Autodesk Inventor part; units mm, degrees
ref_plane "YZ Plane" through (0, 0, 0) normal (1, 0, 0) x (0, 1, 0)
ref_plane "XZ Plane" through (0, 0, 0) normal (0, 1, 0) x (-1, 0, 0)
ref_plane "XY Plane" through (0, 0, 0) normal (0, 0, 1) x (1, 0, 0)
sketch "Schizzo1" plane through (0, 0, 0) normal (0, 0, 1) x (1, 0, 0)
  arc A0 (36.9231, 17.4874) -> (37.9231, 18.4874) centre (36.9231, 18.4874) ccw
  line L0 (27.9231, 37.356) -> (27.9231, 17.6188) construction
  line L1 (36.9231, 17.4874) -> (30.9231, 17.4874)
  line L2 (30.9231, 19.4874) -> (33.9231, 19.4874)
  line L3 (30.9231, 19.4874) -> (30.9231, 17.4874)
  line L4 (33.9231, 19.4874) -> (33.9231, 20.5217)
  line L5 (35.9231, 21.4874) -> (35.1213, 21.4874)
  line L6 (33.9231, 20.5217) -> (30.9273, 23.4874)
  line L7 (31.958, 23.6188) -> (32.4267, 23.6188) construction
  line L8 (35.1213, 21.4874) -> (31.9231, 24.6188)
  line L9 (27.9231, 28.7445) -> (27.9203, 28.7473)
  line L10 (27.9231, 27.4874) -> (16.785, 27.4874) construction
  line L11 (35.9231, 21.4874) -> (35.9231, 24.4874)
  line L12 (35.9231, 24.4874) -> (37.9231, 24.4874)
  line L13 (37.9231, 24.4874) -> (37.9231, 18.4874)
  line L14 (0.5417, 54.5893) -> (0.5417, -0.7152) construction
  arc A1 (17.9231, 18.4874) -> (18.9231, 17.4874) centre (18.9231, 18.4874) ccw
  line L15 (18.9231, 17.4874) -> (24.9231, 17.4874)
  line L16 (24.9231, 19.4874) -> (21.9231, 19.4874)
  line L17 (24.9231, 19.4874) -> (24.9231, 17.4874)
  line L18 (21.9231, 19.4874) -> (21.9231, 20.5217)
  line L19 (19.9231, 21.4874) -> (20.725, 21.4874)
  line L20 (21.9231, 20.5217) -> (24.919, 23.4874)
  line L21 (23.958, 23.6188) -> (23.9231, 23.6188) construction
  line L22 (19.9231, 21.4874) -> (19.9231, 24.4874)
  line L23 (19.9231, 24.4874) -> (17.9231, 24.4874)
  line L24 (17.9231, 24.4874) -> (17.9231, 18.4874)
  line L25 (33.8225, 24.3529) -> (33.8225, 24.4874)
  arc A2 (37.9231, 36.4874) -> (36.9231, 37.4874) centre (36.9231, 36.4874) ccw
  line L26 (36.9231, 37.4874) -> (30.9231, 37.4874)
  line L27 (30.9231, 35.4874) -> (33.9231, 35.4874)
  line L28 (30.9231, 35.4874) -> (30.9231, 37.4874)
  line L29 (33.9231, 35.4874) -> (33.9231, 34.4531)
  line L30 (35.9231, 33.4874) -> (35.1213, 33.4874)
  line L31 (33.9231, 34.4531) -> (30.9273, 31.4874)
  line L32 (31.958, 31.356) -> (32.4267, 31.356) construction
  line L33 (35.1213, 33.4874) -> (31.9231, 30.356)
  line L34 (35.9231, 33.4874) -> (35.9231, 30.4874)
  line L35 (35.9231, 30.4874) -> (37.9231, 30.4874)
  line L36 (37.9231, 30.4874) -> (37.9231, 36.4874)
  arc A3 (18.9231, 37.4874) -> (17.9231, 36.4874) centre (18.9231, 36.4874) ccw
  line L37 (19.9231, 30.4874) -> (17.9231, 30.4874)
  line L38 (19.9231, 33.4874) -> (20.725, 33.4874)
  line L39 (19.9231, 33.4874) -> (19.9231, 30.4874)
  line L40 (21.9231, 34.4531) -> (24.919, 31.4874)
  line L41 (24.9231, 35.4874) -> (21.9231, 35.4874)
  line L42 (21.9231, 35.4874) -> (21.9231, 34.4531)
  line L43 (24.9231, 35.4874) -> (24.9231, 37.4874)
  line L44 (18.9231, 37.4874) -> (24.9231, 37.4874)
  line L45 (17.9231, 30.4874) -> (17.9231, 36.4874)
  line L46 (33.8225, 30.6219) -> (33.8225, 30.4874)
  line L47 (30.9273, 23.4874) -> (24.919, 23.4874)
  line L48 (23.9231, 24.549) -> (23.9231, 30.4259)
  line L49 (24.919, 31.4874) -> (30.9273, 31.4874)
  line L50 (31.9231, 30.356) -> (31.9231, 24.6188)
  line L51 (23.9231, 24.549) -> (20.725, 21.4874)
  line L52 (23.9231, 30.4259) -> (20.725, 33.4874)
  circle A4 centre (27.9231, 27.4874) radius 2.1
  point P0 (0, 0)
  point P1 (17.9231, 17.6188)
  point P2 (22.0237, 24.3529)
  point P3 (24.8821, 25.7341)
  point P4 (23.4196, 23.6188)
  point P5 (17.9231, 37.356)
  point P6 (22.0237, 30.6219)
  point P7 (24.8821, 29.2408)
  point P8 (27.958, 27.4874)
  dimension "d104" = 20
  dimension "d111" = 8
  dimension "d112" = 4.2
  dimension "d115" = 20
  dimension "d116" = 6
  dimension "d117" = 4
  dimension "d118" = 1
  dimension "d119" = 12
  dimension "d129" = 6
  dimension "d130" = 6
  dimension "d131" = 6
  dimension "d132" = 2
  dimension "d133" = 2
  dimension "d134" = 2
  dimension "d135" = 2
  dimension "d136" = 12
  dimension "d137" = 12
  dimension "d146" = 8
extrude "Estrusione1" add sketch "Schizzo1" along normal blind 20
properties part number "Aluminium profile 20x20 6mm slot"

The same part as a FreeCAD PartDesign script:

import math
import FreeCAD as App
import Part
import Sketcher

V = App.Vector
Q = App.Units.Quantity

doc = App.newDocument("Part")
body = doc.addObject("PartDesign::Body", "Body")

# Sketch on XY plane
sketch1 = body.newObject("Sketcher::SketchObject", "Sketch")
sketch1.AttachmentSupport = (doc.getObject("XY_Plane"), [""])
sketch1.MapMode = "FlatFace"
sketch1.addGeometry([
    Part.LineSegment(V(30.9, 17.5, 0), V(36.9, 17.5, 0)),  # 0
    Part.ArcOfCircle(Part.Circle(V(36.9, 18.5, 0), V(0, 0, 1), 1), math.radians(-90), math.radians(0)),  # 1
    Part.LineSegment(V(37.9, 18.5, 0), V(37.9, 24.5, 0)),  # 2
    Part.LineSegment(V(37.9, 24.5, 0), V(35.9, 24.5, 0)),  # 3
    Part.LineSegment(V(35.9, 24.5, 0), V(35.9, 21.5, 0)),  # 4
    Part.LineSegment(V(35.9, 21.5, 0), V(35.1, 21.5, 0)),  # 5
    Part.LineSegment(V(35.1, 21.5, 0), V(31.9, 24.6, 0)),  # 6
    Part.LineSegment(V(31.9, 24.6, 0), V(31.9, 30.4, 0)),  # 7
    Part.LineSegment(V(31.9, 30.4, 0), V(35.1, 33.5, 0)),  # 8
    Part.LineSegment(V(35.1, 33.5, 0), V(35.9, 33.5, 0)),  # 9
    Part.LineSegment(V(35.9, 33.5, 0), V(35.9, 30.5, 0)),  # 10
    Part.LineSegment(V(35.9, 30.5, 0), V(37.9, 30.5, 0)),  # 11
    Part.LineSegment(V(37.9, 30.5, 0), V(37.9, 36.5, 0)),  # 12
    Part.ArcOfCircle(Part.Circle(V(36.9, 36.5, 0), V(0, 0, 1), 1), math.radians(0), math.radians(90)),  # 13
    Part.LineSegment(V(36.9, 37.5, 0), V(30.9, 37.5, 0)),  # 14
    Part.LineSegment(V(30.9, 37.5, 0), V(30.9, 35.5, 0)),  # 15
    Part.LineSegment(V(30.9, 35.5, 0), V(33.9, 35.5, 0)),  # 16
    Part.LineSegment(V(33.9, 35.5, 0), V(33.9, 34.5, 0)),  # 17
    Part.LineSegment(V(33.9, 34.5, 0), V(30.9, 31.5, 0)),  # 18
    Part.LineSegment(V(30.9, 31.5, 0), V(24.9, 31.5, 0)),  # 19
    Part.LineSegment(V(24.9, 31.5, 0), V(21.9, 34.5, 0)),  # 20
    Part.LineSegment(V(21.9, 34.5, 0), V(21.9, 35.5, 0)),  # 21
    Part.LineSegment(V(21.9, 35.5, 0), V(24.9, 35.5, 0)),  # 22
    Part.LineSegment(V(24.9, 35.5, 0), V(24.9, 37.5, 0)),  # 23
    Part.LineSegment(V(24.9, 37.5, 0), V(18.9, 37.5, 0)),  # 24
    Part.ArcOfCircle(Part.Circle(V(18.9, 36.5, 0), V(0, 0, 1), 1), math.radians(90), math.radians(180)),  # 25
    Part.LineSegment(V(17.9, 36.5, 0), V(17.9, 30.5, 0)),  # 26
    Part.LineSegment(V(17.9, 30.5, 0), V(19.9, 30.5, 0)),  # 27
    Part.LineSegment(V(19.9, 30.5, 0), V(19.9, 33.5, 0)),  # 28
    Part.LineSegment(V(19.9, 33.5, 0), V(20.7, 33.5, 0)),  # 29
    Part.LineSegment(V(20.7, 33.5, 0), V(23.9, 30.4, 0)),  # 30
    Part.LineSegment(V(23.9, 30.4, 0), V(23.9, 24.5, 0)),  # 31
    Part.LineSegment(V(23.9, 24.5, 0), V(20.7, 21.5, 0)),  # 32
    Part.LineSegment(V(20.7, 21.5, 0), V(19.9, 21.5, 0)),  # 33
    Part.LineSegment(V(19.9, 21.5, 0), V(19.9, 24.5, 0)),  # 34
    Part.LineSegment(V(19.9, 24.5, 0), V(17.9, 24.5, 0)),  # 35
    Part.LineSegment(V(17.9, 24.5, 0), V(17.9, 18.5, 0)),  # 36
    Part.ArcOfCircle(Part.Circle(V(18.9, 18.5, 0), V(0, 0, 1), 1), math.radians(180), math.radians(270)),  # 37
    Part.LineSegment(V(18.9, 17.5, 0), V(24.9, 17.5, 0)),  # 38
    Part.LineSegment(V(24.9, 17.5, 0), V(24.9, 19.5, 0)),  # 39
    Part.LineSegment(V(24.9, 19.5, 0), V(21.9, 19.5, 0)),  # 40
    Part.LineSegment(V(21.9, 19.5, 0), V(21.9, 20.5, 0)),  # 41
    Part.LineSegment(V(21.9, 20.5, 0), V(24.9, 23.5, 0)),  # 42
    Part.LineSegment(V(24.9, 23.5, 0), V(30.9, 23.5, 0)),  # 43
    Part.LineSegment(V(30.9, 23.5, 0), V(33.9, 20.5, 0)),  # 44
    Part.LineSegment(V(33.9, 20.5, 0), V(33.9, 19.5, 0)),  # 45
    Part.LineSegment(V(33.9, 19.5, 0), V(30.9, 19.5, 0)),  # 46
    Part.LineSegment(V(30.9, 19.5, 0), V(30.9, 17.5, 0)),  # 47
    Part.Circle(V(27.9, 27.5, 0), V(0, 0, 1), 2.1),  # 48
], False)
sketch1.addConstraint([
    Sketcher.Constraint("Tangent", 0, 2, 1, 1),
    Sketcher.Constraint("Tangent", 1, 2, 2, 1),
    Sketcher.Constraint("Coincident", 2, 2, 3, 1),
    Sketcher.Constraint("Coincident", 3, 2, 4, 1),
    Sketcher.Constraint("Coincident", 4, 2, 5, 1),
    Sketcher.Constraint("Coincident", 5, 2, 6, 1),
    Sketcher.Constraint("Coincident", 6, 2, 7, 1),
    Sketcher.Constraint("Coincident", 7, 2, 8, 1),
    Sketcher.Constraint("Coincident", 8, 2, 9, 1),
    Sketcher.Constraint("Coincident", 9, 2, 10, 1),
    Sketcher.Constraint("Coincident", 10, 2, 11, 1),
    Sketcher.Constraint("Coincident", 11, 2, 12, 1),
    Sketcher.Constraint("Tangent", 12, 2, 13, 1),
    Sketcher.Constraint("Tangent", 13, 2, 14, 1),
    Sketcher.Constraint("Coincident", 14, 2, 15, 1),
    Sketcher.Constraint("Coincident", 15, 2, 16, 1),
    Sketcher.Constraint("Coincident", 16, 2, 17, 1),
    Sketcher.Constraint("Coincident", 17, 2, 18, 1),
    Sketcher.Constraint("Coincident", 18, 2, 19, 1),
    Sketcher.Constraint("Coincident", 19, 2, 20, 1),
    Sketcher.Constraint("Coincident", 20, 2, 21, 1),
    Sketcher.Constraint("Coincident", 21, 2, 22, 1),
    Sketcher.Constraint("Coincident", 22, 2, 23, 1),
    Sketcher.Constraint("Coincident", 23, 2, 24, 1),
    Sketcher.Constraint("Tangent", 24, 2, 25, 1),
    Sketcher.Constraint("Tangent", 25, 2, 26, 1),
    Sketcher.Constraint("Coincident", 26, 2, 27, 1),
    Sketcher.Constraint("Coincident", 27, 2, 28, 1),
    Sketcher.Constraint("Coincident", 28, 2, 29, 1),
    Sketcher.Constraint("Coincident", 29, 2, 30, 1),
    Sketcher.Constraint("Coincident", 30, 2, 31, 1),
    Sketcher.Constraint("Coincident", 31, 2, 32, 1),
    Sketcher.Constraint("Coincident", 32, 2, 33, 1),
    Sketcher.Constraint("Coincident", 33, 2, 34, 1),
    Sketcher.Constraint("Coincident", 34, 2, 35, 1),
    Sketcher.Constraint("Coincident", 35, 2, 36, 1),
    Sketcher.Constraint("Tangent", 36, 2, 37, 1),
    Sketcher.Constraint("Tangent", 37, 2, 38, 1),
    Sketcher.Constraint("Coincident", 38, 2, 39, 1),
    Sketcher.Constraint("Coincident", 39, 2, 40, 1),
    Sketcher.Constraint("Coincident", 40, 2, 41, 1),
    Sketcher.Constraint("Coincident", 41, 2, 42, 1),
    Sketcher.Constraint("Coincident", 42, 2, 43, 1),
    Sketcher.Constraint("Coincident", 43, 2, 44, 1),
    Sketcher.Constraint("Coincident", 44, 2, 45, 1),
    Sketcher.Constraint("Coincident", 45, 2, 46, 1),
    Sketcher.Constraint("Coincident", 46, 2, 47, 1),
    Sketcher.Constraint("Coincident", 47, 2, 0, 1),
    Sketcher.Constraint("Horizontal", 0),
    Sketcher.Constraint("Vertical", 2),
    Sketcher.Constraint("Horizontal", 3),
    Sketcher.Constraint("Vertical", 4),
    Sketcher.Constraint("Horizontal", 5),
    Sketcher.Constraint("Vertical", 7),
    Sketcher.Constraint("Horizontal", 9),
    Sketcher.Constraint("Vertical", 10),
    Sketcher.Constraint("Horizontal", 11),
    Sketcher.Constraint("Vertical", 12),
    Sketcher.Constraint("Horizontal", 14),
    Sketcher.Constraint("Vertical", 15),
    Sketcher.Constraint("Horizontal", 16),
    Sketcher.Constraint("Vertical", 17),
    Sketcher.Constraint("Horizontal", 19),
    Sketcher.Constraint("Vertical", 21),
    Sketcher.Constraint("Horizontal", 22),
    Sketcher.Constraint("Vertical", 23),
    Sketcher.Constraint("Horizontal", 24),
    Sketcher.Constraint("Vertical", 26),
    Sketcher.Constraint("Horizontal", 27),
    Sketcher.Constraint("Vertical", 28),
    Sketcher.Constraint("Horizontal", 29),
    Sketcher.Constraint("Vertical", 31),
    Sketcher.Constraint("Horizontal", 33),
    Sketcher.Constraint("Vertical", 34),
    Sketcher.Constraint("Horizontal", 35),
    Sketcher.Constraint("Vertical", 36),
    Sketcher.Constraint("Horizontal", 38),
    Sketcher.Constraint("Vertical", 39),
    Sketcher.Constraint("Horizontal", 40),
    Sketcher.Constraint("Vertical", 41),
    Sketcher.Constraint("Horizontal", 43),
    Sketcher.Constraint("Vertical", 45),
    Sketcher.Constraint("Horizontal", 46),
    Sketcher.Constraint("Vertical", 47),
    Sketcher.Constraint("Equal", 1, 13),
    Sketcher.Constraint("Equal", 13, 25),
    Sketcher.Constraint("Equal", 25, 37),
    Sketcher.Constraint("Parallel", 18, 42),
    Sketcher.Constraint("Parallel", 20, 44),
    Sketcher.Constraint("Horizontal", 13, 3, 25, 3),
    Sketcher.Constraint("Horizontal", 1, 3, 37, 3),
    Sketcher.Constraint("Horizontal", 17, 2, 20, 2),
    Sketcher.Constraint("Horizontal", 16, 2, 21, 2),
    Sketcher.Constraint("Horizontal", 11, 2, 26, 2),
    Sketcher.Constraint("Horizontal", 9, 2, 28, 2),
    Sketcher.Constraint("Horizontal", 5, 2, 32, 2),
    Sketcher.Constraint("Horizontal", 3, 2, 34, 2),
    Sketcher.Constraint("Horizontal", 41, 2, 44, 2),
    Sketcher.Constraint("Horizontal", 40, 2, 45, 2),
    Sketcher.Constraint("Vertical", 1, 3, 13, 3),
    Sketcher.Constraint("Vertical", 25, 3, 37, 3),
    Sketcher.Constraint("Vertical", 5, 2, 8, 2),
    Sketcher.Constraint("Vertical", 4, 2, 9, 2),
    Sketcher.Constraint("Vertical", 29, 2, 32, 2),
    Sketcher.Constraint("Vertical", 28, 2, 33, 2),
    Sketcher.Constraint("Vertical", 23, 2, 38, 2),
    Sketcher.Constraint("Vertical", 21, 2, 40, 2),
    Sketcher.Constraint("Vertical", 19, 2, 42, 2),
    Sketcher.Constraint("Vertical", 18, 2, 43, 2),
    Sketcher.Constraint("Vertical", 17, 2, 44, 2),
    Sketcher.Constraint("Vertical", 15, 2, 46, 2),
    Sketcher.Constraint("Equal", 16, 22),
    Sketcher.Constraint("Equal", 14, 24),
    Sketcher.Constraint("Equal", 11, 27),
    Sketcher.Constraint("Equal", 9, 29),
    Sketcher.Constraint("Equal", 38, 2),
    Sketcher.Constraint("Equal", 46, 4),
    Sketcher.Constraint("Equal", 4, 10),
    Sketcher.Constraint("Equal", 2, 12),
    Sketcher.Constraint("Equal", 35, 15),
    Sketcher.Constraint("Equal", 23, 39),
    Sketcher.Constraint("Equal", 21, 41),
    Sketcher.Constraint("Equal", 6, 8),
    Sketcher.Constraint("Equal", 30, 32),
    Sketcher.Constraint("Radius", 1, Q("1 mm")),
    Sketcher.Constraint("Diameter", 48, Q("4.2 mm")),
    Sketcher.Constraint("DistanceX", 0, 1, 0, 2, Q("6 mm")),
    Sketcher.Constraint("DistanceX", 3, 2, 3, 1, Q("2 mm")),
    Sketcher.Constraint("DistanceY", 2, 2, 13, 3, Q("12 mm")),
    Sketcher.Constraint("DistanceX", 48, 3, 3, 2, Q("8 mm")),
    Sketcher.Constraint("DistanceY", 0, 2, 4, 2, Q("4 mm")),
    Sketcher.Constraint("DistanceX", 6, 2, 3, 2, Q("4 mm")),
    Sketcher.Constraint("DistanceY", 48, 3, 8, 2, Q("6 mm")),
    Sketcher.Constraint("DistanceY", 18, 2, 15, 2, Q("4 mm")),
    Sketcher.Constraint("DistanceX", 20, 2, 48, 3, Q("6 mm")),
    Sketcher.Constraint("DistanceX", 27, 2, 30, 2, Q("4 mm")),
    Sketcher.Constraint("Angle", 18, Q("-135.2893 deg")),
    Sketcher.Constraint("Angle", 30, Q("-43.7499 deg")),
    Sketcher.Constraint("DistanceX", 29, 1, 29, 2, Q("0.802 mm")),
    Sketcher.Constraint("Distance", 6, Q("4.476 mm")),
    Sketcher.Constraint("DistanceX", 19, 2, 19, 1, Q("6.0083 mm")),
    Sketcher.Constraint("DistanceX", -1, 1, 1, 3, Q("36.923 mm")),
    Sketcher.Constraint("DistanceY", -1, 1, 7, 2, Q("30.356 mm")),
])
pad1 = body.newObject("PartDesign::Pad", "Pad")
pad1.Profile = sketch1
pad1.Length = 20

doc.recompute()
